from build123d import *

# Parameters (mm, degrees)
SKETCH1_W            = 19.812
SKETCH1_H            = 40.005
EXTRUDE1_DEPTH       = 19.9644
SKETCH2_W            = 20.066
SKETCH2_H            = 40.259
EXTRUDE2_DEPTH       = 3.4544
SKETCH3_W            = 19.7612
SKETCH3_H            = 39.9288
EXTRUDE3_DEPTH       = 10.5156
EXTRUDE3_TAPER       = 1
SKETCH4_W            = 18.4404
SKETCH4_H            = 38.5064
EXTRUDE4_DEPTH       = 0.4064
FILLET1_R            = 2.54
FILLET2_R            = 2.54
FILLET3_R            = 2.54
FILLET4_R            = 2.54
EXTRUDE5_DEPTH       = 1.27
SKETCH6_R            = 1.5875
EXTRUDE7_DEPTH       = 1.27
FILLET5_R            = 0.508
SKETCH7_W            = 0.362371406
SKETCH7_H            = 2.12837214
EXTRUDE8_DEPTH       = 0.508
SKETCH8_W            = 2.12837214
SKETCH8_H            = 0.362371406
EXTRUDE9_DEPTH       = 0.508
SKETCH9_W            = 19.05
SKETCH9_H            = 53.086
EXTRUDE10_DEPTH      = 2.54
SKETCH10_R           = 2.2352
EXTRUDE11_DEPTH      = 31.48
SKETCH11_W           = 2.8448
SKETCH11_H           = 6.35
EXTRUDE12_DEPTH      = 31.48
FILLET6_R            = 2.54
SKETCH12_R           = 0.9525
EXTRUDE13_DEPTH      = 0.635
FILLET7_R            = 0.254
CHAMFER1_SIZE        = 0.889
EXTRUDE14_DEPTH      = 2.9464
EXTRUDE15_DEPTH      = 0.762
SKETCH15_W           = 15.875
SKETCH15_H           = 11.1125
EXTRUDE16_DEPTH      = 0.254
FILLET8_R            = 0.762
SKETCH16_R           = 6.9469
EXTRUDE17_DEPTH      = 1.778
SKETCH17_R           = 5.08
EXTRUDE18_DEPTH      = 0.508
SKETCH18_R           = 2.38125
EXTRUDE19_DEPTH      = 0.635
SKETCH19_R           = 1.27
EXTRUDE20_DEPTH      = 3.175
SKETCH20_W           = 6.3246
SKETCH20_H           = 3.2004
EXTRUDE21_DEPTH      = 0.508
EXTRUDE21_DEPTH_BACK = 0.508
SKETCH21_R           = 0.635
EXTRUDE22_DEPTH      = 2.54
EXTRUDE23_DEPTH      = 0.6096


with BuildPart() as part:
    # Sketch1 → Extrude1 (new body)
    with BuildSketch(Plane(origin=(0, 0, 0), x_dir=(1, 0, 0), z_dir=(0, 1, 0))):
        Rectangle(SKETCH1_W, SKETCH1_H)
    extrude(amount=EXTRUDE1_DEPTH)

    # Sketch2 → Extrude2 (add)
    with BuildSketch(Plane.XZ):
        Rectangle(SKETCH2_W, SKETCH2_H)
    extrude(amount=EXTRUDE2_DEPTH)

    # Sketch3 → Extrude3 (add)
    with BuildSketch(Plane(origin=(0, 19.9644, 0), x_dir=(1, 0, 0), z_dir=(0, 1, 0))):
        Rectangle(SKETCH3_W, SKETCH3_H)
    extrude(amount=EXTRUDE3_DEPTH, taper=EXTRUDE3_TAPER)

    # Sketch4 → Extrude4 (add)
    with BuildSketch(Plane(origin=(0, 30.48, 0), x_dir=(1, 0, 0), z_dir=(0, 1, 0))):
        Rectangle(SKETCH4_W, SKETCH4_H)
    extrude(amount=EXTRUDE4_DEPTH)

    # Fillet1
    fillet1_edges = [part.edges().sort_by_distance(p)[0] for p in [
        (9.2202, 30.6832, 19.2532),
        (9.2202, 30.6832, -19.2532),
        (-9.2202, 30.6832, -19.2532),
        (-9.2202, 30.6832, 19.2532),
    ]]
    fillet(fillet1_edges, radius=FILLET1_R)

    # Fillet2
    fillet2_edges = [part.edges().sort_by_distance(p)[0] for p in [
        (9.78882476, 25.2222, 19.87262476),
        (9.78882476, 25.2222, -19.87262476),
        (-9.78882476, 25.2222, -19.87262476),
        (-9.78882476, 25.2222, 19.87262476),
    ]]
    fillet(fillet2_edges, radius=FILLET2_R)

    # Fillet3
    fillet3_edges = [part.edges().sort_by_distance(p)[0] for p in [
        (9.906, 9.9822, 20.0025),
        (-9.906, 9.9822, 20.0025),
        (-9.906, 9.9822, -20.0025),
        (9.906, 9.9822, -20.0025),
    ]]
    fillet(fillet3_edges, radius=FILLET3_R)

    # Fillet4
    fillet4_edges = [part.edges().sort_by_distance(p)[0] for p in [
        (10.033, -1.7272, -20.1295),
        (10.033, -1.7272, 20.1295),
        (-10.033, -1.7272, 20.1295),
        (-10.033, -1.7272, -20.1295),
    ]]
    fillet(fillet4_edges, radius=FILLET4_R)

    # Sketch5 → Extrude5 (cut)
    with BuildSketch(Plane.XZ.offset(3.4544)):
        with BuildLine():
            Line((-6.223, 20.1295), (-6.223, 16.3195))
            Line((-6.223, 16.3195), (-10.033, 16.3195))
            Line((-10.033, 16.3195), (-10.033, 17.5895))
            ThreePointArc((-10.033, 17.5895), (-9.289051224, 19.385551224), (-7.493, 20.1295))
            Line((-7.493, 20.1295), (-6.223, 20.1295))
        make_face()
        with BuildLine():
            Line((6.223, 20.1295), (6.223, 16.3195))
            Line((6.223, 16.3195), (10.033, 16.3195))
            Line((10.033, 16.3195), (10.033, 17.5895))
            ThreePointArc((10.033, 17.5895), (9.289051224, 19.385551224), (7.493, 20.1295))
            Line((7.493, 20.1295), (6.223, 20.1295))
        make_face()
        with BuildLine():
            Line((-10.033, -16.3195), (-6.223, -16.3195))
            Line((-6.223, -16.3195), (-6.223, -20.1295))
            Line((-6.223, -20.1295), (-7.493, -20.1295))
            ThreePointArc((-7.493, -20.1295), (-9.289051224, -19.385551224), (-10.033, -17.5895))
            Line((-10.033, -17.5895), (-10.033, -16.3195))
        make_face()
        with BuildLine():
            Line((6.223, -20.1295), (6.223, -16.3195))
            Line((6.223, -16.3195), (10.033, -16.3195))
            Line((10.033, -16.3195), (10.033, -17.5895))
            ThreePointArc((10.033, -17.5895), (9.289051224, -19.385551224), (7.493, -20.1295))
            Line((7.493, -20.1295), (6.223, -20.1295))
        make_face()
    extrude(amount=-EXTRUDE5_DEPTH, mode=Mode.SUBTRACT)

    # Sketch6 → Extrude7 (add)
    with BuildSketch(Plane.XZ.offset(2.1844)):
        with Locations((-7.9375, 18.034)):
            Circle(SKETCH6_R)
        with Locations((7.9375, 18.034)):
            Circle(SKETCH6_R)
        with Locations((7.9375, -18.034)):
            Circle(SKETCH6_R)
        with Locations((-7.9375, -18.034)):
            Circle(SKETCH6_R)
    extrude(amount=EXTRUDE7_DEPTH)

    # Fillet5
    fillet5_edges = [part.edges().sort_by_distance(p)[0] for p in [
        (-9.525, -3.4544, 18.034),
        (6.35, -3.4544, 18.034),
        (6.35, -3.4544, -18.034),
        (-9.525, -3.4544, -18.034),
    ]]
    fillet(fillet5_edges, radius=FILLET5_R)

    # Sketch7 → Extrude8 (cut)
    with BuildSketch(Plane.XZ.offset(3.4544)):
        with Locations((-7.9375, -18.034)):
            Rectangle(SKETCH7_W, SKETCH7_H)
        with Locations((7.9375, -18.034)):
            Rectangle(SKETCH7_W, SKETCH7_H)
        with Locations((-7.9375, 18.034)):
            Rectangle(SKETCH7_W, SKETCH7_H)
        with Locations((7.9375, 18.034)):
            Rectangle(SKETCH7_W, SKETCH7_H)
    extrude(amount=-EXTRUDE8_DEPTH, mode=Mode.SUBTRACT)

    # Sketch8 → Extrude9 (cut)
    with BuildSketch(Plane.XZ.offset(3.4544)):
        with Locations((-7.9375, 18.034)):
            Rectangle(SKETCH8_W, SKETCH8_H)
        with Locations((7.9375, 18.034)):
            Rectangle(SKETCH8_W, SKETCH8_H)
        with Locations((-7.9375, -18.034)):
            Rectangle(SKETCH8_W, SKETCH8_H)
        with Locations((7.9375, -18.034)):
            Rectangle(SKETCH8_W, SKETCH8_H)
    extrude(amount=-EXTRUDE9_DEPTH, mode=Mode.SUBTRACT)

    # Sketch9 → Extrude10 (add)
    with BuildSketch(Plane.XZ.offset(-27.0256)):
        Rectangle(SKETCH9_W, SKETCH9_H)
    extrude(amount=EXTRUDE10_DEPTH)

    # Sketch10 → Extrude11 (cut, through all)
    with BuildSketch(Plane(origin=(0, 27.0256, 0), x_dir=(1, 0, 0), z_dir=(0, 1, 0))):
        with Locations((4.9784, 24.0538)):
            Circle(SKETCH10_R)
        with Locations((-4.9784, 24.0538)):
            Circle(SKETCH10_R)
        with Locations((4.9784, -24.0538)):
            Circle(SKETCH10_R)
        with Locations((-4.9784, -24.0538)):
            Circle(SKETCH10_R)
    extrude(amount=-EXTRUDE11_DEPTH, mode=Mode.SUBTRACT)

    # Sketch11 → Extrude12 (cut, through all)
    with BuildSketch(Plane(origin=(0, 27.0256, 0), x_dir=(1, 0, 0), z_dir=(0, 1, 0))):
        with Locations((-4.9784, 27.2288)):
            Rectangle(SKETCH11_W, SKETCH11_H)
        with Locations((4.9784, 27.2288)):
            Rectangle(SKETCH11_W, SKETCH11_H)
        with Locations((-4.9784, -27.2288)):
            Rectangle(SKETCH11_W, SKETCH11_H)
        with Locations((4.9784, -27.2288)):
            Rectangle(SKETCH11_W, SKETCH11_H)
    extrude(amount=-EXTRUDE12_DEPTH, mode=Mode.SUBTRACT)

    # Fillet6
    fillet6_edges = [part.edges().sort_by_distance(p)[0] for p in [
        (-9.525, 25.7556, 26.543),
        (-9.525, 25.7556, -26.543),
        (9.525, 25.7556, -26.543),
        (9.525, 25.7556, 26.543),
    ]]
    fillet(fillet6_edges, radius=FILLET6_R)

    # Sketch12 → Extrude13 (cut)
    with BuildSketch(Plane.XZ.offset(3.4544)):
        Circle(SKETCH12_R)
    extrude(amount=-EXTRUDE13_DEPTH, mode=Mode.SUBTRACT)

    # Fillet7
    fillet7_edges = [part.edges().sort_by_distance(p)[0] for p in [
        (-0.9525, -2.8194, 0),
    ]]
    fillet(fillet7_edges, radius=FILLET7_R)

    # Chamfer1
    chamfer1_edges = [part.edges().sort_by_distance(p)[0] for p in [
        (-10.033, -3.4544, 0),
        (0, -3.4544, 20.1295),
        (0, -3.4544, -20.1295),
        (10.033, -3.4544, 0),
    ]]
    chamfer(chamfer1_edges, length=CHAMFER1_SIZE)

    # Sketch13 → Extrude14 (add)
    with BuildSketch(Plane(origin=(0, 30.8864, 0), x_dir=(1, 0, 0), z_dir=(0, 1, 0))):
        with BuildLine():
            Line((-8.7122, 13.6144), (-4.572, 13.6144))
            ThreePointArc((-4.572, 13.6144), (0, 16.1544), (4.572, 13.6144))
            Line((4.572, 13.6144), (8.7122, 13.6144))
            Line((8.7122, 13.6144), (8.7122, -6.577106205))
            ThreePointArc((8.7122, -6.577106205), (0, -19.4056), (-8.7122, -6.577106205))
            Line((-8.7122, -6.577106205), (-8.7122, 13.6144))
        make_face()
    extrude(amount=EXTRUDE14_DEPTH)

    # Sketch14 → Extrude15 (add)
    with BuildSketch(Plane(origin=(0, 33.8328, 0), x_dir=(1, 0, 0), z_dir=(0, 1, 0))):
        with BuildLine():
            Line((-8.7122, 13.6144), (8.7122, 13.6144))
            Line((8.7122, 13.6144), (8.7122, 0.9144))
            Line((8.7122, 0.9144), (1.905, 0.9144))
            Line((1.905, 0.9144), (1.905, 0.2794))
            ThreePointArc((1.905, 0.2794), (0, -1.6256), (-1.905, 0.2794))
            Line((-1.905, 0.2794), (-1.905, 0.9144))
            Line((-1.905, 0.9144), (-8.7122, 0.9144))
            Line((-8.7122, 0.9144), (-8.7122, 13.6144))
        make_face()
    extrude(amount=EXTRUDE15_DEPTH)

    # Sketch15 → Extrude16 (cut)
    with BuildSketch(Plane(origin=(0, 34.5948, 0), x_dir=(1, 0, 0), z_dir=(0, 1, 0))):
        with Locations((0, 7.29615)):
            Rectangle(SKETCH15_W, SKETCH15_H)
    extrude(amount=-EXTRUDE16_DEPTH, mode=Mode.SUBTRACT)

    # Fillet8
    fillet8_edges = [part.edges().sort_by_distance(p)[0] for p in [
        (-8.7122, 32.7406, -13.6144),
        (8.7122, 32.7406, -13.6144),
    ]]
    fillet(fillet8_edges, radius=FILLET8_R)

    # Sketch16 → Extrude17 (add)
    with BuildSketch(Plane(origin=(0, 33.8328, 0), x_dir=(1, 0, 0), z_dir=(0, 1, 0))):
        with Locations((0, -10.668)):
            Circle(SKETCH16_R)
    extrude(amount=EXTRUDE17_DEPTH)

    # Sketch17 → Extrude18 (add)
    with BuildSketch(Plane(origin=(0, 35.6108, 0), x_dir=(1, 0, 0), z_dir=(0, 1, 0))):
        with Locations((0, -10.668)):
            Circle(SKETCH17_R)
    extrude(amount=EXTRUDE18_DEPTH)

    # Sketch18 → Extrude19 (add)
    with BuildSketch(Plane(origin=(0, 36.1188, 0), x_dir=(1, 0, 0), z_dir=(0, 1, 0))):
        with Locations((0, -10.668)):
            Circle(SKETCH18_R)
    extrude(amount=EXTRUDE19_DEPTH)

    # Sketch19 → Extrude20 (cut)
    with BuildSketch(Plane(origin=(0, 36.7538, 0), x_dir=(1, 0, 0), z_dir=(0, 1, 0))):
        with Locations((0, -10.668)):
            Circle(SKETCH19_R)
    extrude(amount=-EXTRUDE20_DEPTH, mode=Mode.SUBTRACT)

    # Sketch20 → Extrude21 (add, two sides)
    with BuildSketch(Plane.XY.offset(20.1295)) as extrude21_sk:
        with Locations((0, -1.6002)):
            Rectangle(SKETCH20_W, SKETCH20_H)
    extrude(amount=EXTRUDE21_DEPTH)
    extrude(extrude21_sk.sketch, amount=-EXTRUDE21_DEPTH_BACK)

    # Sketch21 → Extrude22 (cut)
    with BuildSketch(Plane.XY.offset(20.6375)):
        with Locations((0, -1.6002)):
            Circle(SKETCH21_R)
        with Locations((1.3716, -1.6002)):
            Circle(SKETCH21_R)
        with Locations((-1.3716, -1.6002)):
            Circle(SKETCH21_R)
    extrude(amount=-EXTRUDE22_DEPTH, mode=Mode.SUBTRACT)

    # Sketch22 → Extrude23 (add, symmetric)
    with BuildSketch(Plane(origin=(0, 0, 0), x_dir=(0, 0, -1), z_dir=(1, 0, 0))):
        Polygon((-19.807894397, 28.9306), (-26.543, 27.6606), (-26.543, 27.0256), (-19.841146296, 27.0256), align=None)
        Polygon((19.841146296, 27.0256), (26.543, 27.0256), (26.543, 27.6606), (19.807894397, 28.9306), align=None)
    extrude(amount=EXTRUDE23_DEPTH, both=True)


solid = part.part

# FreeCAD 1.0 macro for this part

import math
import FreeCAD as App
import Part
import Sketcher
from FreeCAD import Vector
Q = App.Units.Quantity


def edges_at(feature, points):
    """Names of the edges that pass closest to the given points."""
    edges = feature.Shape.Edges
    near = lambda p: min(range(len(edges)), key=lambda i: edges[i].distToShape(Part.Vertex(*p))[0])
    return sorted({f"Edge{near(p) + 1}" for p in points})


def add_polygon(sketch, points):
    """Adds a closed chain of lines whose ends are joined by coincident constraints."""
    first, n = sketch.GeometryCount, len(points)
    for a, b in zip(points, points[1:] + points[:1]):
        sketch.addGeometry(Part.LineSegment(App.Vector(*a, 0), App.Vector(*b, 0)), False)
    for i in range(n):
        sketch.addConstraint(Sketcher.Constraint("Coincident", first + i, 2, first + (i + 1) % n, 1))

doc = App.newDocument("Part")
body = doc.addObject("PartDesign::Body", "Body")

# Sketch on XZ plane
sketch1 = body.newObject("Sketcher::SketchObject", "Sketch")
sketch1.AttachmentSupport = (doc.getObject("XZ_Plane"), [""])
sketch1.MapMode = "FlatFace"
add_polygon(sketch1, [(-10, -20), (-10, 20), (10, 20), (10, -20)])  # lines 0-3
sketch1.addConstraint([
    Sketcher.Constraint("Vertical", 0),
    Sketcher.Constraint("Horizontal", 1),
    Sketcher.Constraint("Vertical", 2),
    Sketcher.Constraint("Horizontal", 3),
    Sketcher.Constraint("Symmetric", 0, 2, 2, 2, -1, 1),
    Sketcher.Constraint("DistanceX", 1, 1, 1, 2, Q("0.78 in")),
    Sketcher.Constraint("DistanceY", 0, 1, 0, 2, Q("1.575 in")),
])
pad1 = body.newObject("PartDesign::Pad", "Pad")
pad1.Profile = sketch1
pad1.Length = Q("0.786 in")
pad1.Reversed = True

# Sketch on XZ plane
sketch2 = body.newObject("Sketcher::SketchObject", "Sketch001")
sketch2.AttachmentSupport = (doc.getObject("XZ_Plane"), [""])
sketch2.MapMode = "FlatFace"
add_polygon(sketch2, [(-10, 20), (-10, -20), (10, -20), (10, 20)])  # lines 0-3
sketch2.addConstraint([
    Sketcher.Constraint("Vertical", 0),
    Sketcher.Constraint("Horizontal", 1),
    Sketcher.Constraint("Vertical", 2),
    Sketcher.Constraint("Horizontal", 3),
    Sketcher.Constraint("Symmetric", 0, 2, 2, 2, -1, 1),
    Sketcher.Constraint("DistanceX", 1, 1, 1, 2, Q("0.79 in")),
    Sketcher.Constraint("DistanceY", 0, 2, 0, 1, Q("1.585 in")),
])
pad2 = body.newObject("PartDesign::Pad", "Pad001")
pad2.Profile = sketch2
pad2.Length = Q("0.136 in")

# Sketch on XZ plane
sketch3 = body.newObject("Sketcher::SketchObject", "Sketch002")
sketch3.AttachmentSupport = (doc.getObject("XZ_Plane"), [""])
sketch3.MapMode = "FlatFace"
sketch3.AttachmentOffset = App.Placement(Vector(0, 0, -0.786 * 25.4), App.Rotation())
add_polygon(sketch3, [(-10, -20), (-10, 20), (10, 20), (10, -20)])  # lines 0-3
sketch3.addConstraint([
    Sketcher.Constraint("Vertical", 0),
    Sketcher.Constraint("Horizontal", 1),
    Sketcher.Constraint("Vertical", 2),
    Sketcher.Constraint("Horizontal", 3),
    Sketcher.Constraint("Symmetric", 0, 2, 2, 2, -1, 1),
    Sketcher.Constraint("DistanceX", 1, 1, 1, 2, Q("0.778 in")),
    Sketcher.Constraint("DistanceY", 0, 1, 0, 2, Q("1.572 in")),
])
pad3 = body.newObject("PartDesign::Pad", "Pad002")
pad3.Profile = sketch3
pad3.Length = Q("0.414 in")
pad3.Reversed = True
pad3.TaperAngle = -1

# Sketch on XZ plane
sketch4 = body.newObject("Sketcher::SketchObject", "Sketch003")
sketch4.AttachmentSupport = (doc.getObject("XZ_Plane"), [""])
sketch4.MapMode = "FlatFace"
sketch4.AttachmentOffset = App.Placement(Vector(0, 0, -1.2 * 25.4), App.Rotation())
add_polygon(sketch4, [(-9, -19), (-9, 19), (9, 19), (9, -19)])  # lines 0-3
sketch4.addConstraint([
    Sketcher.Constraint("Vertical", 0),
    Sketcher.Constraint("Horizontal", 1),
    Sketcher.Constraint("Vertical", 2),
    Sketcher.Constraint("Horizontal", 3),
    Sketcher.Constraint("Symmetric", 0, 2, 2, 2, -1, 1),
    Sketcher.Constraint("DistanceX", 1, 1, 1, 2, Q("0.726 in")),
    Sketcher.Constraint("DistanceY", 0, 1, 0, 2, Q("1.516 in")),
])
pad4 = body.newObject("PartDesign::Pad", "Pad003")
pad4.Profile = sketch4
pad4.Length = Q("0.016 in")
pad4.Reversed = True
doc.recompute()

fillet = body.newObject("PartDesign::Fillet", "Fillet")
fillet.Base = (pad4, edges_at(pad4, [
    (9.22, 30.683, 19.253),
    (9.22, 30.683, -19.253),
    (-9.22, 30.683, -19.253),
    (-9.22, 30.683, 19.253),
]))
fillet.Radius = Q("0.1 in")
doc.recompute()

fillet2 = body.newObject("PartDesign::Fillet", "Fillet001")
fillet2.Base = (fillet, edges_at(fillet, [
    (9.789, 25.222, 19.873),
    (9.789, 25.222, -19.873),
    (-9.789, 25.222, -19.873),
    (-9.789, 25.222, 19.873),
]))
fillet2.Radius = Q("0.1 in")
doc.recompute()

fillet3 = body.newObject("PartDesign::Fillet", "Fillet002")
fillet3.Base = (fillet2, edges_at(fillet2, [
    (9.906, 9.982, 20.003),
    (-9.906, 9.982, 20.003),
    (-9.906, 9.982, -20.003),
    (9.906, 9.982, -20.003),
]))
fillet3.Radius = Q("0.1 in")
doc.recompute()

fillet4 = body.newObject("PartDesign::Fillet", "Fillet003")
fillet4.Base = (fillet3, edges_at(fillet3, [
    (10.033, -1.727, -20.13),
    (10.033, -1.727, 20.13),
    (-10.033, -1.727, 20.13),
    (-10.033, -1.727, -20.13),
]))
fillet4.Radius = Q("0.1 in")

# Sketch on XZ plane
sketch5 = body.newObject("Sketcher::SketchObject", "Sketch004")
sketch5.AttachmentSupport = (doc.getObject("XZ_Plane"), [""])
sketch5.MapMode = "FlatFace"
sketch5.AttachmentOffset = App.Placement(Vector(0, 0, 0.136 * 25.4), App.Rotation())
sketch5.addGeometry([
    Part.LineSegment(Vector(-6.2, 16.3, 0), Vector(-6.2, 20.1, 0)),  # 0
    Part.LineSegment(Vector(-6.2, 20.1, 0), Vector(-7.5, 20.1, 0)),  # 1
    Part.ArcOfCircle(Part.Circle(Vector(-7.5, 17.6, 0), Vector(0, 0, 1), 2.5), math.radians(90), math.radians(180)),  # 2
    Part.LineSegment(Vector(-10, 17.6, 0), Vector(-10, 16.3, 0)),  # 3
    Part.LineSegment(Vector(-10, 16.3, 0), Vector(-6.2, 16.3, 0)),  # 4
    Part.LineSegment(Vector(6.2, 20.1, 0), Vector(6.2, 16.3, 0)),  # 5
    Part.LineSegment(Vector(6.2, 16.3, 0), Vector(10, 16.3, 0)),  # 6
    Part.LineSegment(Vector(10, 16.3, 0), Vector(10, 17.6, 0)),  # 7
    Part.ArcOfCircle(Part.Circle(Vector(7.5, 17.6, 0), Vector(0, 0, 1), 2.5), math.radians(0), math.radians(90)),  # 8
    Part.LineSegment(Vector(7.5, 20.1, 0), Vector(6.2, 20.1, 0)),  # 9
    Part.LineSegment(Vector(-6.2, -16.3, 0), Vector(-10, -16.3, 0)),  # 10
    Part.LineSegment(Vector(-10, -16.3, 0), Vector(-10, -17.6, 0)),  # 11
    Part.ArcOfCircle(Part.Circle(Vector(-7.5, -17.6, 0), Vector(0, 0, 1), 2.5), math.radians(-180), math.radians(-90)),  # 12
    Part.LineSegment(Vector(-7.5, -20.1, 0), Vector(-6.2, -20.1, 0)),  # 13
    Part.LineSegment(Vector(-6.2, -20.1, 0), Vector(-6.2, -16.3, 0)),  # 14
    Part.LineSegment(Vector(6.2, -16.3, 0), Vector(6.2, -20.1, 0)),  # 15
    Part.LineSegment(Vector(6.2, -20.1, 0), Vector(7.5, -20.1, 0)),  # 16
    Part.ArcOfCircle(Part.Circle(Vector(7.5, -17.6, 0), Vector(0, 0, 1), 2.5), math.radians(-90), math.radians(0)),  # 17
    Part.LineSegment(Vector(10, -17.6, 0), Vector(10, -16.3, 0)),  # 18
    Part.LineSegment(Vector(10, -16.3, 0), Vector(6.2, -16.3, 0)),  # 19
], False)
sketch5.addConstraint([
    Sketcher.Constraint("Coincident", 0, 2, 1, 1),
    Sketcher.Constraint("Tangent", 1, 2, 2, 1),
    Sketcher.Constraint("Tangent", 2, 2, 3, 1),
    Sketcher.Constraint("Coincident", 3, 2, 4, 1),
    Sketcher.Constraint("Coincident", 4, 2, 0, 1),
    Sketcher.Constraint("Coincident", 5, 2, 6, 1),
    Sketcher.Constraint("Coincident", 6, 2, 7, 1),
    Sketcher.Constraint("Tangent", 7, 2, 8, 1),
    Sketcher.Constraint("Tangent", 8, 2, 9, 1),
    Sketcher.Constraint("Coincident", 9, 2, 5, 1),
    Sketcher.Constraint("Coincident", 10, 2, 11, 1),
    Sketcher.Constraint("Tangent", 11, 2, 12, 1),
    Sketcher.Constraint("Tangent", 12, 2, 13, 1),
    Sketcher.Constraint("Coincident", 13, 2, 14, 1),
    Sketcher.Constraint("Coincident", 14, 2, 10, 1),
    Sketcher.Constraint("Coincident", 15, 2, 16, 1),
    Sketcher.Constraint("Tangent", 16, 2, 17, 1),
    Sketcher.Constraint("Tangent", 17, 2, 18, 1),
    Sketcher.Constraint("Coincident", 18, 2, 19, 1),
    Sketcher.Constraint("Coincident", 19, 2, 15, 1),
    Sketcher.Constraint("Vertical", 0),
    Sketcher.Constraint("Horizontal", 1),
    Sketcher.Constraint("Vertical", 3),
    Sketcher.Constraint("Horizontal", 4),
    Sketcher.Constraint("Vertical", 5),
    Sketcher.Constraint("Horizontal", 6),
    Sketcher.Constraint("Vertical", 7),
    Sketcher.Constraint("Horizontal", 9),
    Sketcher.Constraint("Horizontal", 10),
    Sketcher.Constraint("Vertical", 11),
    Sketcher.Constraint("Horizontal", 13),
    Sketcher.Constraint("Vertical", 14),
    Sketcher.Constraint("Vertical", 15),
    Sketcher.Constraint("Horizontal", 16),
    Sketcher.Constraint("Vertical", 18),
    Sketcher.Constraint("Horizontal", 19),
    Sketcher.Constraint("Equal", 2, 8),
    Sketcher.Constraint("Equal", 8, 12),
    Sketcher.Constraint("Equal", 12, 17),
    Sketcher.Constraint("Symmetric", 8, 3, 12, 3, -1, 1),
    Sketcher.Constraint("Symmetric", 2, 3, 17, 3, -1, 1),
    Sketcher.Constraint("Symmetric", 5, 2, 14, 2, -1, 1),
    Sketcher.Constraint("Symmetric", 4, 2, 19, 2, -1, 1),
    Sketcher.Constraint("Symmetric", 2, 3, 8, 3, -2),
    Sketcher.Constraint("Symmetric", 4, 2, 5, 2, -2),
    Sketcher.Constraint("Equal", 19, 0),
    Sketcher.Constraint("Radius", 2, Q("0.1 in")),
    Sketcher.Constraint("DistanceX", 1, 2, 1, 1, Q("0.05 in")),
    Sketcher.Constraint("DistanceX", 2, 3, 8, 3, Q("0.59 in")),
    Sketcher.Constraint("DistanceY", 12, 3, 2, 3, Q("1.385 in")),
])
pocket1 = body.newObject("PartDesign::Pocket", "Pocket")
pocket1.Profile = sketch5
pocket1.Length = Q("0.05 in")

# Sketch on XZ plane
sketch6 = body.newObject("Sketcher::SketchObject", "Sketch005")
sketch6.AttachmentSupport = (doc.getObject("XZ_Plane"), [""])
sketch6.MapMode = "FlatFace"
sketch6.AttachmentOffset = App.Placement(Vector(0, 0, 0.086 * 25.4), App.Rotation())
sketch6.addGeometry([
    Part.Circle(Vector(-7.9, 18, 0), Vector(0, 0, 1), 1.6),
    Part.Circle(Vector(7.9, 18, 0), Vector(0, 0, 1), 1.6),
    Part.Circle(Vector(7.9, -18, 0), Vector(0, 0, 1), 1.6),
    Part.Circle(Vector(-7.9, -18, 0), Vector(0, 0, 1), 1.6),
], False)
sketch6.addConstraint([
    Sketcher.Constraint("Equal", 0, 1),
    Sketcher.Constraint("Equal", 1, 2),
    Sketcher.Constraint("Equal", 2, 3),
    Sketcher.Constraint("Symmetric", 0, 3, 2, 3, -1, 1),
    Sketcher.Constraint("Symmetric", 1, 3, 3, 3, -1, 1),
    Sketcher.Constraint("Symmetric", 0, 3, 1, 3, -2),
    Sketcher.Constraint("Diameter", 0, Q("0.125 in")),
    Sketcher.Constraint("DistanceY", -1, 1, 0, 3, Q("0.71 in")),
    Sketcher.Constraint("DistanceX", 0, 3, -1, 1, Q("0.3125 in")),
])
pad5 = body.newObject("PartDesign::Pad", "Pad004")
pad5.Profile = sketch6
pad5.Length = Q("0.05 in")
doc.recompute()

fillet5 = body.newObject("PartDesign::Fillet", "Fillet004")
fillet5.Base = (pad5, edges_at(pad5, [
    (-9.525, -3.454, 18.034),
    (6.35, -3.454, 18.034),
    (6.35, -3.454, -18.034),
    (-9.525, -3.454, -18.034),
]))
fillet5.Radius = Q("0.02 in")

# Sketch on XZ plane
sketch7 = body.newObject("Sketcher::SketchObject", "Sketch006")
sketch7.AttachmentSupport = (doc.getObject("XZ_Plane"), [""])
sketch7.MapMode = "FlatFace"
sketch7.AttachmentOffset = App.Placement(Vector(0, 0, 0.136 * 25.4), App.Rotation())
add_polygon(sketch7, [(-8.12, -16.97), (-8.12, -19.1), (-7.76, -19.1), (-7.76, -16.97)])  # lines 0-3
add_polygon(sketch7, [(7.76, -16.97), (7.76, -19.1), (8.12, -19.1), (8.12, -16.97)])  # lines 4-7
add_polygon(sketch7, [(-8.12, 19.1), (-8.12, 16.97), (-7.76, 16.97), (-7.76, 19.1)])  # lines 8-11
add_polygon(sketch7, [(7.76, 19.1), (7.76, 16.97), (8.12, 16.97), (8.12, 19.1)])  # lines 12-15
sketch7.addConstraint([
    Sketcher.Constraint("Vertical", 0),
    Sketcher.Constraint("Horizontal", 1),
    Sketcher.Constraint("Vertical", 2),
    Sketcher.Constraint("Horizontal", 3),
    Sketcher.Constraint("Vertical", 4),
    Sketcher.Constraint("Horizontal", 5),
    Sketcher.Constraint("Vertical", 6),
    Sketcher.Constraint("Horizontal", 7),
    Sketcher.Constraint("Vertical", 8),
    Sketcher.Constraint("Horizontal", 9),
    Sketcher.Constraint("Vertical", 10),
    Sketcher.Constraint("Horizontal", 11),
    Sketcher.Constraint("Vertical", 12),
    Sketcher.Constraint("Horizontal", 13),
    Sketcher.Constraint("Vertical", 14),
    Sketcher.Constraint("Horizontal", 15),
    Sketcher.Constraint("Symmetric", 6, 2, 8, 2, -1, 1),
    Sketcher.Constraint("Symmetric", 4, 2, 10, 2, -1, 1),
    Sketcher.Constraint("Symmetric", 2, 2, 12, 2, -1, 1),
    Sketcher.Constraint("Symmetric", 0, 2, 14, 2, -1, 1),
    Sketcher.Constraint("Symmetric", 1, 2, 4, 2, -2),
    Sketcher.Constraint("Symmetric", 3, 2, 6, 2, -2),
    Sketcher.Constraint("DistanceY", 0, 2, 8, 2, Q("1.42 in")),
    Sketcher.Constraint("DistanceX", 0, 2, 4, 2, Q("0.625 in")),
    Sketcher.Constraint("DistanceX", 1, 1, 1, 2, Q("0.362371 mm")),
    Sketcher.Constraint("DistanceY", 0, 2, 0, 1, Q("2.128372 mm")),
])
pocket2 = body.newObject("PartDesign::Pocket", "Pocket001")
pocket2.Profile = sketch7
pocket2.Length = Q("0.02 in")

# Sketch on XZ plane
sketch8 = body.newObject("Sketcher::SketchObject", "Sketch007")
sketch8.AttachmentSupport = (doc.getObject("XZ_Plane"), [""])
sketch8.MapMode = "FlatFace"
sketch8.AttachmentOffset = App.Placement(Vector(0, 0, 0.136 * 25.4), App.Rotation())
add_polygon(sketch8, [(-9, 18.22), (-9, 17.85), (-6.87, 17.85), (-6.87, 18.22)])  # lines 0-3
add_polygon(sketch8, [(6.87, 18.22), (6.87, 17.85), (9, 17.85), (9, 18.22)])  # lines 4-7
add_polygon(sketch8, [(-9, -17.85), (-9, -18.22), (-6.87, -18.22), (-6.87, -17.85)])  # lines 8-11
add_polygon(sketch8, [(6.87, -17.85), (6.87, -18.22), (9, -18.22), (9, -17.85)])  # lines 12-15
sketch8.addConstraint([
    Sketcher.Constraint("Vertical", 0),
    Sketcher.Constraint("Horizontal", 1),
    Sketcher.Constraint("Vertical", 2),
    Sketcher.Constraint("Horizontal", 3),
    Sketcher.Constraint("Vertical", 4),
    Sketcher.Constraint("Horizontal", 5),
    Sketcher.Constraint("Vertical", 6),
    Sketcher.Constraint("Horizontal", 7),
    Sketcher.Constraint("Vertical", 8),
    Sketcher.Constraint("Horizontal", 9),
    Sketcher.Constraint("Vertical", 10),
    Sketcher.Constraint("Horizontal", 11),
    Sketcher.Constraint("Vertical", 12),
    Sketcher.Constraint("Horizontal", 13),
    Sketcher.Constraint("Vertical", 14),
    Sketcher.Constraint("Horizontal", 15),
    Sketcher.Constraint("Symmetric", 6, 2, 8, 2, -1, 1),
    Sketcher.Constraint("Symmetric", 4, 2, 10, 2, -1, 1),
    Sketcher.Constraint("Symmetric", 2, 2, 12, 2, -1, 1),
    Sketcher.Constraint("Symmetric", 0, 2, 14, 2, -1, 1),
    Sketcher.Constraint("Symmetric", 1, 2, 4, 2, -2),
    Sketcher.Constraint("Symmetric", 3, 2, 6, 2, -2),
    Sketcher.Constraint("DistanceY", 8, 2, 0, 2, Q("1.42 in")),
    Sketcher.Constraint("DistanceX", 0, 2, 4, 2, Q("0.625 in")),
    Sketcher.Constraint("DistanceY", 0, 2, 0, 1, Q("0.362371 mm")),
    Sketcher.Constraint("DistanceX", 1, 1, 1, 2, Q("2.128372 mm")),
])
pocket3 = body.newObject("PartDesign::Pocket", "Pocket002")
pocket3.Profile = sketch8
pocket3.Length = Q("0.02 in")

# Sketch on XZ plane
sketch9 = body.newObject("Sketcher::SketchObject", "Sketch008")
sketch9.AttachmentSupport = (doc.getObject("XZ_Plane"), [""])
sketch9.MapMode = "FlatFace"
sketch9.AttachmentOffset = App.Placement(Vector(0, 0, -1.064 * 25.4), App.Rotation())
add_polygon(sketch9, [(-10, 27), (-10, -27), (10, -27), (10, 27)])  # lines 0-3
sketch9.addConstraint([
    Sketcher.Constraint("Vertical", 0),
    Sketcher.Constraint("Horizontal", 1),
    Sketcher.Constraint("Vertical", 2),
    Sketcher.Constraint("Horizontal", 3),
    Sketcher.Constraint("Symmetric", 0, 2, 2, 2, -1, 1),
    Sketcher.Constraint("DistanceX", 1, 1, 1, 2, Q("0.75 in")),
    Sketcher.Constraint("DistanceY", 0, 2, 0, 1, Q("2.09 in")),
])
pad6 = body.newObject("PartDesign::Pad", "Pad005")
pad6.Profile = sketch9
pad6.Length = Q("0.1 in")

# Sketch on XZ plane
sketch10 = body.newObject("Sketcher::SketchObject", "Sketch009")
sketch10.AttachmentSupport = (doc.getObject("XZ_Plane"), [""])
sketch10.MapMode = "FlatFace"
sketch10.AttachmentOffset = App.Placement(Vector(0, 0, -1.064 * 25.4), App.Rotation())
sketch10.addGeometry([
    Part.Circle(Vector(5, -24.1, 0), Vector(0, 0, 1), 2.2),
    Part.Circle(Vector(-5, -24.1, 0), Vector(0, 0, 1), 2.2),
    Part.Circle(Vector(5, 24.1, 0), Vector(0, 0, 1), 2.2),
    Part.Circle(Vector(-5, 24.1, 0), Vector(0, 0, 1), 2.2),
], False)
sketch10.addConstraint([
    Sketcher.Constraint("Equal", 0, 1),
    Sketcher.Constraint("Equal", 1, 2),
    Sketcher.Constraint("Equal", 2, 3),
    Sketcher.Constraint("Symmetric", 1, 3, 2, 3, -1, 1),
    Sketcher.Constraint("Symmetric", 0, 3, 3, 3, -1, 1),
    Sketcher.Constraint("Symmetric", 0, 3, 1, 3, -2),
    Sketcher.Constraint("Diameter", 0, Q("0.176 in")),
    Sketcher.Constraint("DistanceX", -1, 1, 0, 3, Q("0.196 in")),
    Sketcher.Constraint("DistanceY", 0, 3, -1, 1, Q("0.947 in")),
])
pocket4 = body.newObject("PartDesign::Pocket", "Pocket003")
pocket4.Profile = sketch10
pocket4.Type = "ThroughAll"
pocket4.Reversed = True

# Sketch on XZ plane
sketch11 = body.newObject("Sketcher::SketchObject", "Sketch010")
sketch11.AttachmentSupport = (doc.getObject("XZ_Plane"), [""])
sketch11.MapMode = "FlatFace"
sketch11.AttachmentOffset = App.Placement(Vector(0, 0, -1.064 * 25.4), App.Rotation())
add_polygon(sketch11, [(-6.4, -30.4), (-6.4, -24.1), (-3.6, -24.1), (-3.6, -30.4)])  # lines 0-3
add_polygon(sketch11, [(3.6, -30.4), (3.6, -24.1), (6.4, -24.1), (6.4, -30.4)])  # lines 4-7
add_polygon(sketch11, [(-6.4, 24.1), (-6.4, 30.4), (-3.6, 30.4), (-3.6, 24.1)])  # lines 8-11
add_polygon(sketch11, [(3.6, 24.1), (3.6, 30.4), (6.4, 30.4), (6.4, 24.1)])  # lines 12-15
sketch11.addConstraint([
    Sketcher.Constraint("Vertical", 0),
    Sketcher.Constraint("Horizontal", 1),
    Sketcher.Constraint("Vertical", 2),
    Sketcher.Constraint("Horizontal", 3),
    Sketcher.Constraint("Vertical", 4),
    Sketcher.Constraint("Horizontal", 5),
    Sketcher.Constraint("Vertical", 6),
    Sketcher.Constraint("Horizontal", 7),
    Sketcher.Constraint("Vertical", 8),
    Sketcher.Constraint("Horizontal", 9),
    Sketcher.Constraint("Vertical", 10),
    Sketcher.Constraint("Horizontal", 11),
    Sketcher.Constraint("Vertical", 12),
    Sketcher.Constraint("Horizontal", 13),
    Sketcher.Constraint("Vertical", 14),
    Sketcher.Constraint("Horizontal", 15),
    Sketcher.Constraint("Symmetric", 6, 2, 8, 2, -1, 1),
    Sketcher.Constraint("Symmetric", 4, 2, 10, 2, -1, 1),
    Sketcher.Constraint("Symmetric", 2, 2, 12, 2, -1, 1),
    Sketcher.Constraint("Symmetric", 0, 2, 14, 2, -1, 1),
    Sketcher.Constraint("Symmetric", 1, 2, 4, 2, -2),
    Sketcher.Constraint("Symmetric", 3, 2, 6, 2, -2),
    Sketcher.Constraint("DistanceY", 0, 1, 0, 2, Q("0.25 in")),
    Sketcher.Constraint("DistanceX", 1, 1, 1, 2, Q("0.112 in")),
    Sketcher.Constraint("DistanceX", 1, 2, -1, 1, Q("0.14 in")),
    Sketcher.Constraint("DistanceY", 0, 2, -1, 1, Q("0.947 in")),
])
pocket5 = body.newObject("PartDesign::Pocket", "Pocket004")
pocket5.Profile = sketch11
pocket5.Type = "ThroughAll"
pocket5.Reversed = True
doc.recompute()

fillet6 = body.newObject("PartDesign::Fillet", "Fillet005")
fillet6.Base = (pocket5, edges_at(pocket5, [
    (-9.525, 25.756, 26.543),
    (-9.525, 25.756, -26.543),
    (9.525, 25.756, -26.543),
    (9.525, 25.756, 26.543),
]))
fillet6.Radius = Q("0.1 in")

# Sketch on XZ plane
sketch12 = body.newObject("Sketcher::SketchObject", "Sketch011")
sketch12.AttachmentSupport = (doc.getObject("XZ_Plane"), [""])
sketch12.MapMode = "FlatFace"
sketch12.AttachmentOffset = App.Placement(Vector(0, 0, 0.136 * 25.4), App.Rotation())
sketch12.addGeometry(Part.Circle(Vector(0, 0, 0), Vector(0, 0, 1), 1), False)
sketch12.addConstraint([
    Sketcher.Constraint("Coincident", 0, 3, -1, 1),
    Sketcher.Constraint("Diameter", 0, Q("0.075 in")),
])
pocket6 = body.newObject("PartDesign::Pocket", "Pocket005")
pocket6.Profile = sketch12
pocket6.Length = Q("0.025 in")
doc.recompute()

fillet7 = body.newObject("PartDesign::Fillet", "Fillet006")
fillet7.Base = (pocket6, edges_at(pocket6, [(-0.953, -2.819, 0)]))
fillet7.Radius = Q("0.01 in")
doc.recompute()

chamfer = body.newObject("PartDesign::Chamfer", "Chamfer")
chamfer.Base = (fillet7, edges_at(fillet7, [
    (-10.033, -3.454, 0),
    (0, -3.454, 20.13),
    (0, -3.454, -20.13),
    (10.033, -3.454, 0),
]))
chamfer.Size = Q("0.035 in")

# Sketch on XZ plane
sketch13 = body.newObject("Sketcher::SketchObject", "Sketch012")
sketch13.AttachmentSupport = (doc.getObject("XZ_Plane"), [""])
sketch13.MapMode = "FlatFace"
sketch13.AttachmentOffset = App.Placement(Vector(0, 0, -1.216 * 25.4), App.Rotation())
sketch13.addGeometry([
    Part.LineSegment(Vector(-4.6, -13.6, 0), Vector(-8.7, -13.6, 0)),  # 0
    Part.LineSegment(Vector(-8.7, -13.6, 0), Vector(-8.7, 6.6, 0)),  # 1
    Part.ArcOfCircle(Part.Circle(Vector(0, 10, 0), Vector(0, 0, 1), 9.4), math.radians(-22), math.radians(202)),  # 2
    Part.LineSegment(Vector(8.7, 6.6, 0), Vector(8.7, -13.6, 0)),  # 3
    Part.LineSegment(Vector(8.7, -13.6, 0), Vector(4.6, -13.6, 0)),  # 4
    Part.ArcOfCircle(Part.Circle(Vector(0, -10.8, 0), Vector(0, 0, 1), 5.4), math.radians(-148), math.radians(-32)),  # 5
], False)
sketch13.addConstraint([
    Sketcher.Constraint("Coincident", 0, 2, 1, 1),
    Sketcher.Constraint("Coincident", 1, 2, 2, 2),
    Sketcher.Constraint("Coincident", 2, 1, 3, 1),
    Sketcher.Constraint("Coincident", 3, 2, 4, 1),
    Sketcher.Constraint("Coincident", 4, 2, 5, 2),
    Sketcher.Constraint("Coincident", 5, 1, 0, 1),
    Sketcher.Constraint("Horizontal", 0),
    Sketcher.Constraint("Vertical", 1),
    Sketcher.Constraint("Vertical", 3),
    Sketcher.Constraint("Horizontal", 4),
    Sketcher.Constraint("Symmetric", 1, 2, 2, 1, -2),
    Sketcher.Constraint("Symmetric", 4, 2, 5, 1, -2),
    Sketcher.Constraint("Radius", 2, Q("0.369 in")),
    Sketcher.Constraint("Radius", 5, Q("0.212 in")),
    Sketcher.Constraint("DistanceX", 0, 2, 0, 1, Q("0.163 in")),
    Sketcher.Constraint("DistanceX", -1, 1, 4, 2, Q("0.18 in")),
    Sketcher.Constraint("DistanceY", -1, 1, 2, 3, Q("0.395 in")),
    Sketcher.Constraint("DistanceY", 5, 3, -1, 1, Q("0.424 in")),
])
pad7 = body.newObject("PartDesign::Pad", "Pad006")
pad7.Profile = sketch13
pad7.Length = Q("0.116 in")
pad7.Reversed = True

# Sketch on XZ plane
sketch14 = body.newObject("Sketcher::SketchObject", "Sketch013")
sketch14.AttachmentSupport = (doc.getObject("XZ_Plane"), [""])
sketch14.MapMode = "FlatFace"
sketch14.AttachmentOffset = App.Placement(Vector(0, 0, -1.332 * 25.4), App.Rotation())
sketch14.addGeometry([
    Part.LineSegment(Vector(8.7, -13.6, 0), Vector(-8.7, -13.6, 0)),  # 0
    Part.LineSegment(Vector(-8.7, -13.6, 0), Vector(-8.7, -0.9, 0)),  # 1
    Part.LineSegment(Vector(-8.7, -0.9, 0), Vector(-1.9, -0.9, 0)),  # 2
    Part.LineSegment(Vector(-1.9, -0.9, 0), Vector(-1.9, -0.3, 0)),  # 3
    Part.ArcOfCircle(Part.Circle(Vector(0, -0.3, 0), Vector(0, 0, 1), 1.9), math.radians(0), math.radians(180)),  # 4
    Part.LineSegment(Vector(1.9, -0.3, 0), Vector(1.9, -0.9, 0)),  # 5
    Part.LineSegment(Vector(1.9, -0.9, 0), Vector(8.7, -0.9, 0)),  # 6
    Part.LineSegment(Vector(8.7, -0.9, 0), Vector(8.7, -13.6, 0)),  # 7
], False)
sketch14.addConstraint([
    Sketcher.Constraint("Coincident", 0, 2, 1, 1),
    Sketcher.Constraint("Coincident", 1, 2, 2, 1),
    Sketcher.Constraint("Coincident", 2, 2, 3, 1),
    Sketcher.Constraint("Tangent", 3, 2, 4, 2),
    Sketcher.Constraint("Tangent", 4, 1, 5, 1),
    Sketcher.Constraint("Coincident", 5, 2, 6, 1),
    Sketcher.Constraint("Coincident", 6, 2, 7, 1),
    Sketcher.Constraint("Coincident", 7, 2, 0, 1),
    Sketcher.Constraint("Horizontal", 0),
    Sketcher.Constraint("Vertical", 1),
    Sketcher.Constraint("Horizontal", 2),
    Sketcher.Constraint("Vertical", 3),
    Sketcher.Constraint("Vertical", 5),
    Sketcher.Constraint("Horizontal", 6),
    Sketcher.Constraint("Vertical", 7),
    Sketcher.Constraint("Symmetric", 2, 2, 5, 2, -2),
    Sketcher.Constraint("Equal", 2, 6),
    Sketcher.Constraint("DistanceY", 1, 1, 1, 2, Q("0.5 in")),
    Sketcher.Constraint("Radius", 4, Q("0.075 in")),
    Sketcher.Constraint("DistanceX", 0, 2, 0, 1, Q("0.686 in")),
    Sketcher.Constraint("DistanceY", 3, 1, 3, 2, Q("0.025 in")),
    Sketcher.Constraint("DistanceY", 4, 3, -1, 1, Q("0.011 in")),
])
pad8 = body.newObject("PartDesign::Pad", "Pad007")
pad8.Profile = sketch14
pad8.Length = Q("0.03 in")
pad8.Reversed = True

# Sketch on XZ plane
sketch15 = body.newObject("Sketcher::SketchObject", "Sketch014")
sketch15.AttachmentSupport = (doc.getObject("XZ_Plane"), [""])
sketch15.MapMode = "FlatFace"
sketch15.AttachmentOffset = App.Placement(Vector(0, 0, -1.362 * 25.4), App.Rotation())
add_polygon(sketch15, [(-8, -13), (-8, -2), (8, -2), (8, -13)])  # lines 0-3
sketch15.addConstraint([
    Sketcher.Constraint("Vertical", 0),
    Sketcher.Constraint("Horizontal", 1),
    Sketcher.Constraint("Vertical", 2),
    Sketcher.Constraint("Horizontal", 3),
    Sketcher.Constraint("DistanceX", 1, 1, 1, 2, Q("0.625 in")),
    Sketcher.Constraint("DistanceY", 0, 1, 0, 2, Q("0.4375 in")),
    Sketcher.Constraint("DistanceX", 0, 2, -1, 1, Q("0.3125 in")),
    Sketcher.Constraint("DistanceY", 2, 2, -1, 1, Q("0.506 in")),
])
pocket7 = body.newObject("PartDesign::Pocket", "Pocket006")
pocket7.Profile = sketch15
pocket7.Length = Q("0.01 in")
pocket7.Reversed = True
doc.recompute()

fillet8 = body.newObject("PartDesign::Fillet", "Fillet007")
fillet8.Base = (pocket7, edges_at(pocket7, [(-8.712, 32.741, -13.614), (8.712, 32.741, -13.614)]))
fillet8.Radius = Q("0.03 in")

# Sketch on XZ plane
sketch16 = body.newObject("Sketcher::SketchObject", "Sketch015")
sketch16.AttachmentSupport = (doc.getObject("XZ_Plane"), [""])
sketch16.MapMode = "FlatFace"
sketch16.AttachmentOffset = App.Placement(Vector(0, 0, -1.332 * 25.4), App.Rotation())
sketch16.addGeometry(Part.Circle(Vector(0, 11, 0), Vector(0, 0, 1), 7), False)
sketch16.addConstraint([
    Sketcher.Constraint("PointOnObject", 0, 3, -2),
    Sketcher.Constraint("Diameter", 0, Q("0.547 in")),
    Sketcher.Constraint("DistanceY", -1, 1, 0, 3, Q("0.42 in")),
])
pad9 = body.newObject("PartDesign::Pad", "Pad008")
pad9.Profile = sketch16
pad9.Length = Q("0.07 in")
pad9.Reversed = True

# Sketch on XZ plane
sketch17 = body.newObject("Sketcher::SketchObject", "Sketch016")
sketch17.AttachmentSupport = (doc.getObject("XZ_Plane"), [""])
sketch17.MapMode = "FlatFace"
sketch17.AttachmentOffset = App.Placement(Vector(0, 0, -1.402 * 25.4), App.Rotation())
sketch17.addGeometry(Part.Circle(Vector(0, 11, 0), Vector(0, 0, 1), 5), False)
sketch17.addConstraint([
    Sketcher.Constraint("PointOnObject", 0, 3, -2),
    Sketcher.Constraint("Diameter", 0, Q("0.4 in")),
    Sketcher.Constraint("DistanceY", -1, 1, 0, 3, Q("0.42 in")),
])
pad10 = body.newObject("PartDesign::Pad", "Pad009")
pad10.Profile = sketch17
pad10.Length = Q("0.02 in")
pad10.Reversed = True

# Sketch on XZ plane
sketch18 = body.newObject("Sketcher::SketchObject", "Sketch017")
sketch18.AttachmentSupport = (doc.getObject("XZ_Plane"), [""])
sketch18.MapMode = "FlatFace"
sketch18.AttachmentOffset = App.Placement(Vector(0, 0, -1.422 * 25.4), App.Rotation())
sketch18.addGeometry(Part.Circle(Vector(0, 10.7, 0), Vector(0, 0, 1), 2.4), False)
sketch18.addConstraint([
    Sketcher.Constraint("PointOnObject", 0, 3, -2),
    Sketcher.Constraint("Diameter", 0, Q("0.1875 in")),
    Sketcher.Constraint("DistanceY", -1, 1, 0, 3, Q("0.42 in")),
])
pad11 = body.newObject("PartDesign::Pad", "Pad010")
pad11.Profile = sketch18
pad11.Length = Q("0.025 in")
pad11.Reversed = True

# Sketch on XZ plane
sketch19 = body.newObject("Sketcher::SketchObject", "Sketch018")
sketch19.AttachmentSupport = (doc.getObject("XZ_Plane"), [""])
sketch19.MapMode = "FlatFace"
sketch19.AttachmentOffset = App.Placement(Vector(0, 0, -1.447 * 25.4), App.Rotation())
sketch19.addGeometry(Part.Circle(Vector(0, 10.7, 0), Vector(0, 0, 1), 1.3), False)
sketch19.addConstraint([
    Sketcher.Constraint("PointOnObject", 0, 3, -2),
    Sketcher.Constraint("Diameter", 0, Q("0.1 in")),
    Sketcher.Constraint("DistanceY", -1, 1, 0, 3, Q("0.42 in")),
])
pocket8 = body.newObject("PartDesign::Pocket", "Pocket007")
pocket8.Profile = sketch19
pocket8.Length = Q("0.125 in")
pocket8.Reversed = True

# Sketch on XY plane
sketch20 = body.newObject("Sketcher::SketchObject", "Sketch019")
sketch20.AttachmentSupport = (doc.getObject("XY_Plane"), [""])
sketch20.MapMode = "FlatFace"
sketch20.AttachmentOffset = App.Placement(Vector(0, 0, 0.7925 * 25.4), App.Rotation())
add_polygon(sketch20, [(-3.2, 0), (-3.2, -3.2), (3.2, -3.2), (3.2, 0)])  # lines 0-3
sketch20.addConstraint([
    Sketcher.Constraint("Vertical", 0),
    Sketcher.Constraint("Horizontal", 1),
    Sketcher.Constraint("Vertical", 2),
    Sketcher.Constraint("Horizontal", 3),
    Sketcher.Constraint("Symmetric", 2, 2, 3, 2, -1, 1),
    Sketcher.Constraint("DistanceX", 1, 1, 1, 2, Q("0.249 in")),
    Sketcher.Constraint("DistanceY", 0, 2, 0, 1, Q("0.126 in")),
])
pad12 = body.newObject("PartDesign::Pad", "Pad011")
pad12.Profile = sketch20
pad12.Type = "TwoLengths"
pad12.Length = Q("0.02 in")
pad12.Length2 = Q("0.02 in")

# Sketch on XY plane
sketch21 = body.newObject("Sketcher::SketchObject", "Sketch020")
sketch21.AttachmentSupport = (doc.getObject("XY_Plane"), [""])
sketch21.MapMode = "FlatFace"
sketch21.AttachmentOffset = App.Placement(Vector(0, 0, 0.8125 * 25.4), App.Rotation())
sketch21.addGeometry([
    Part.Circle(Vector(0, -1.6, 0), Vector(0, 0, 1), 0.6),
    Part.Circle(Vector(1.4, -1.6, 0), Vector(0, 0, 1), 0.6),
    Part.Circle(Vector(-1.4, -1.6, 0), Vector(0, 0, 1), 0.6),
], False)
sketch21.addConstraint([
    Sketcher.Constraint("Equal", 0, 1),
    Sketcher.Constraint("Equal", 1, 2),
    Sketcher.Constraint("Symmetric", 1, 3, 2, 3, -2),
    Sketcher.Constraint("PointOnObject", 0, 3, -2),
    Sketcher.Constraint("Horizontal", 0, 3, 1, 3),
    Sketcher.Constraint("Diameter", 0, Q("0.05 in")),
    Sketcher.Constraint("DistanceY", 0, 3, -1, 1, Q("0.063 in")),
    Sketcher.Constraint("DistanceX", -1, 1, 1, 3, Q("0.054 in")),
])
pocket9 = body.newObject("PartDesign::Pocket", "Pocket008")
pocket9.Profile = sketch21
pocket9.Length = Q("0.1 in")

# Sketch on YZ plane
sketch22 = body.newObject("Sketcher::SketchObject", "Sketch021")
sketch22.AttachmentSupport = (doc.getObject("YZ_Plane"), [""])
sketch22.MapMode = "FlatFace"
add_polygon(sketch22, [(28.9, 19.8), (27.7, 26.5), (27, 26.5), (27, 19.8)])  # lines 0-3
add_polygon(sketch22, [(27, -19.8), (27, -26.5), (27.7, -26.5), (28.9, -19.8)])  # lines 4-7
sketch22.addConstraint([
    Sketcher.Constraint("Horizontal", 1),
    Sketcher.Constraint("Vertical", 2),
    Sketcher.Constraint("Vertical", 4),
    Sketcher.Constraint("Horizontal", 5),
    Sketcher.Constraint("Symmetric", 1, 2, 4, 2, -1),
    Sketcher.Constraint("Symmetric", 3, 2, 6, 2, -1),
    Sketcher.Constraint("Vertical", 0, 2, 5, 2),
    Sketcher.Constraint("Equal", 2, 4),
    Sketcher.Constraint("Angle", 3, Q("-1 deg")),
    Sketcher.Constraint("DistanceX", 1, 2, 1, 1, Q("0.025 in")),
    Sketcher.Constraint("DistanceX", 0, 2, 3, 2, Q("0.05 in")),
    Sketcher.Constraint("DistanceY", 4, 2, 1, 2, Q("2.09 in")),
    Sketcher.Constraint("DistanceX", -1, 1, 0, 2, Q("1.089 in")),
    Sketcher.Constraint("Distance", 0, Q("6.853798 mm")),
])
pad13 = body.newObject("PartDesign::Pad", "Pad012")
pad13.Profile = sketch22
pad13.Length = Q("0.048 in")
pad13.Midplane = True

doc.recompute()
